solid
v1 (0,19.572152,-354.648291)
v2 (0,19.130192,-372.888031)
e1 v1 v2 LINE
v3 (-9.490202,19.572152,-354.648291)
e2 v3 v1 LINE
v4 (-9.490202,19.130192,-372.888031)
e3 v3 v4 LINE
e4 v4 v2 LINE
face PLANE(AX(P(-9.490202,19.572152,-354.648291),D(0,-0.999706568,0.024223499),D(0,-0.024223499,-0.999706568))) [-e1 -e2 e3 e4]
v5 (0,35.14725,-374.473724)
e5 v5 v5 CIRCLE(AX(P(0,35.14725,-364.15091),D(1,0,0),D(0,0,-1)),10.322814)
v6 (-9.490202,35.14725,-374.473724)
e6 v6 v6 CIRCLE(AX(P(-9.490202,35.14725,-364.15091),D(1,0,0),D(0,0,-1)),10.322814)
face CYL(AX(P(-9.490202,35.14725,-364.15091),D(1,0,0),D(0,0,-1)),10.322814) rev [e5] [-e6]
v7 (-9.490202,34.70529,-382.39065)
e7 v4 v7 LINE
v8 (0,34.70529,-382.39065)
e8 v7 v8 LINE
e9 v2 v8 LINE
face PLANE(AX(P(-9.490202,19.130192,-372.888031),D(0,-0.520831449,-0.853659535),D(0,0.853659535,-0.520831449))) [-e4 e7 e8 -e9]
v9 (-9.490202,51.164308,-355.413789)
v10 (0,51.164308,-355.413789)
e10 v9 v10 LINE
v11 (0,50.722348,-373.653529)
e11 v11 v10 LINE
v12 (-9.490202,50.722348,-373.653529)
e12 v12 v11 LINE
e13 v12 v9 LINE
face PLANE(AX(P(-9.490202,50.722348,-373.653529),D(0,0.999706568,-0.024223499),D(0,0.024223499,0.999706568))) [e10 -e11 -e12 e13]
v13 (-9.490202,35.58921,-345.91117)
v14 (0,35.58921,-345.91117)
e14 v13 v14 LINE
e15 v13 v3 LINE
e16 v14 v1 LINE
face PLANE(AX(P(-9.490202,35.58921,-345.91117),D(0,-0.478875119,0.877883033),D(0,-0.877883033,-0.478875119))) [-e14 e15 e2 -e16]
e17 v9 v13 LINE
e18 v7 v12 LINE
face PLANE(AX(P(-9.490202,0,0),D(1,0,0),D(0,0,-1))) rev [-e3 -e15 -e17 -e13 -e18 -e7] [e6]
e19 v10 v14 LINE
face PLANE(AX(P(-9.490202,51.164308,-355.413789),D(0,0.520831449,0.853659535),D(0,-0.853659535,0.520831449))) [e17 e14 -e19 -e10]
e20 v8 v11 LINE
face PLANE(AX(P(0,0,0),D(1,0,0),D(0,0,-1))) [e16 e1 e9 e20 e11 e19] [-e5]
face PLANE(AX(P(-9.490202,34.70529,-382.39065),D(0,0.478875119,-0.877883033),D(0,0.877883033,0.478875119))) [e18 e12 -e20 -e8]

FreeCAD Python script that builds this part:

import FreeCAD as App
import Part
import Sketcher

V = App.Vector

doc = App.newDocument("Part")
body = doc.addObject("PartDesign::Body", "Body")

# Sketch on YZ plane
sketch1 = body.newObject("Sketcher::SketchObject", "Sketch")
sketch1.AttachmentSupport = (doc.getObject("YZ_Plane"), [""])
sketch1.MapMode = "FlatFace"
sketch1.addGeometry([
    Part.LineSegment(V(36, -346, 0), V(20, -355, 0)),  # 0
    Part.LineSegment(V(20, -355, 0), V(19, -373, 0)),  # 1
    Part.LineSegment(V(19, -373, 0), V(35, -382, 0)),  # 2
    Part.LineSegment(V(35, -382, 0), V(51, -374, 0)),  # 3
    Part.LineSegment(V(51, -374, 0), V(51, -355, 0)),  # 4
    Part.LineSegment(V(51, -355, 0), V(36, -346, 0)),  # 5
    Part.Circle(V(35, -364, 0), V(0, 0, 1), 10),  # 6
], False)
sketch1.addConstraint([
    Sketcher.Constraint("Coincident", 0, 2, 1, 1),
    Sketcher.Constraint("Coincident", 1, 2, 2, 1),
    Sketcher.Constraint("Coincident", 2, 2, 3, 1),
    Sketcher.Constraint("Coincident", 3, 2, 4, 1),
    Sketcher.Constraint("Coincident", 4, 2, 5, 1),
    Sketcher.Constraint("Coincident", 5, 2, 0, 1),
    Sketcher.Constraint("Parallel", 0, 3),
    Sketcher.Constraint("Parallel", 1, 4),
    Sketcher.Constraint("Parallel", 2, 5),
    Sketcher.Constraint("Equal", 0, 1),
    Sketcher.Constraint("Equal", 1, 2),
    Sketcher.Constraint("Equal", 2, 3),
    Sketcher.Constraint("Diameter", 6, 20.645628),
    Sketcher.Constraint("DistanceX", 0, 2, 6, 3, 15.575098),
    Sketcher.Constraint("DistanceX", 1, 2, 2, 2, 15.575098),
    Sketcher.Constraint("DistanceX", 6, 3, 3, 2, 15.575098),
    Sketcher.Constraint("DistanceX", -1, 1, 6, 3, 35.14725),
    Sketcher.Constraint("DistanceY", 6, 3, -1, 1, 364.15091),
    Sketcher.Constraint("DistanceY", 0, 2, -1, 1, 354.648291),
    Sketcher.Constraint("DistanceX", -1, 1, 1, 2, 19.130192),
    Sketcher.Constraint("DistanceY", 1, 2, -1, 1, 372.888031),
])
pad1 = body.newObject("PartDesign::Pad", "Pad")
pad1.Profile = sketch1
pad1.Length = 9.490202
pad1.Reversed = True

doc.recompute()
